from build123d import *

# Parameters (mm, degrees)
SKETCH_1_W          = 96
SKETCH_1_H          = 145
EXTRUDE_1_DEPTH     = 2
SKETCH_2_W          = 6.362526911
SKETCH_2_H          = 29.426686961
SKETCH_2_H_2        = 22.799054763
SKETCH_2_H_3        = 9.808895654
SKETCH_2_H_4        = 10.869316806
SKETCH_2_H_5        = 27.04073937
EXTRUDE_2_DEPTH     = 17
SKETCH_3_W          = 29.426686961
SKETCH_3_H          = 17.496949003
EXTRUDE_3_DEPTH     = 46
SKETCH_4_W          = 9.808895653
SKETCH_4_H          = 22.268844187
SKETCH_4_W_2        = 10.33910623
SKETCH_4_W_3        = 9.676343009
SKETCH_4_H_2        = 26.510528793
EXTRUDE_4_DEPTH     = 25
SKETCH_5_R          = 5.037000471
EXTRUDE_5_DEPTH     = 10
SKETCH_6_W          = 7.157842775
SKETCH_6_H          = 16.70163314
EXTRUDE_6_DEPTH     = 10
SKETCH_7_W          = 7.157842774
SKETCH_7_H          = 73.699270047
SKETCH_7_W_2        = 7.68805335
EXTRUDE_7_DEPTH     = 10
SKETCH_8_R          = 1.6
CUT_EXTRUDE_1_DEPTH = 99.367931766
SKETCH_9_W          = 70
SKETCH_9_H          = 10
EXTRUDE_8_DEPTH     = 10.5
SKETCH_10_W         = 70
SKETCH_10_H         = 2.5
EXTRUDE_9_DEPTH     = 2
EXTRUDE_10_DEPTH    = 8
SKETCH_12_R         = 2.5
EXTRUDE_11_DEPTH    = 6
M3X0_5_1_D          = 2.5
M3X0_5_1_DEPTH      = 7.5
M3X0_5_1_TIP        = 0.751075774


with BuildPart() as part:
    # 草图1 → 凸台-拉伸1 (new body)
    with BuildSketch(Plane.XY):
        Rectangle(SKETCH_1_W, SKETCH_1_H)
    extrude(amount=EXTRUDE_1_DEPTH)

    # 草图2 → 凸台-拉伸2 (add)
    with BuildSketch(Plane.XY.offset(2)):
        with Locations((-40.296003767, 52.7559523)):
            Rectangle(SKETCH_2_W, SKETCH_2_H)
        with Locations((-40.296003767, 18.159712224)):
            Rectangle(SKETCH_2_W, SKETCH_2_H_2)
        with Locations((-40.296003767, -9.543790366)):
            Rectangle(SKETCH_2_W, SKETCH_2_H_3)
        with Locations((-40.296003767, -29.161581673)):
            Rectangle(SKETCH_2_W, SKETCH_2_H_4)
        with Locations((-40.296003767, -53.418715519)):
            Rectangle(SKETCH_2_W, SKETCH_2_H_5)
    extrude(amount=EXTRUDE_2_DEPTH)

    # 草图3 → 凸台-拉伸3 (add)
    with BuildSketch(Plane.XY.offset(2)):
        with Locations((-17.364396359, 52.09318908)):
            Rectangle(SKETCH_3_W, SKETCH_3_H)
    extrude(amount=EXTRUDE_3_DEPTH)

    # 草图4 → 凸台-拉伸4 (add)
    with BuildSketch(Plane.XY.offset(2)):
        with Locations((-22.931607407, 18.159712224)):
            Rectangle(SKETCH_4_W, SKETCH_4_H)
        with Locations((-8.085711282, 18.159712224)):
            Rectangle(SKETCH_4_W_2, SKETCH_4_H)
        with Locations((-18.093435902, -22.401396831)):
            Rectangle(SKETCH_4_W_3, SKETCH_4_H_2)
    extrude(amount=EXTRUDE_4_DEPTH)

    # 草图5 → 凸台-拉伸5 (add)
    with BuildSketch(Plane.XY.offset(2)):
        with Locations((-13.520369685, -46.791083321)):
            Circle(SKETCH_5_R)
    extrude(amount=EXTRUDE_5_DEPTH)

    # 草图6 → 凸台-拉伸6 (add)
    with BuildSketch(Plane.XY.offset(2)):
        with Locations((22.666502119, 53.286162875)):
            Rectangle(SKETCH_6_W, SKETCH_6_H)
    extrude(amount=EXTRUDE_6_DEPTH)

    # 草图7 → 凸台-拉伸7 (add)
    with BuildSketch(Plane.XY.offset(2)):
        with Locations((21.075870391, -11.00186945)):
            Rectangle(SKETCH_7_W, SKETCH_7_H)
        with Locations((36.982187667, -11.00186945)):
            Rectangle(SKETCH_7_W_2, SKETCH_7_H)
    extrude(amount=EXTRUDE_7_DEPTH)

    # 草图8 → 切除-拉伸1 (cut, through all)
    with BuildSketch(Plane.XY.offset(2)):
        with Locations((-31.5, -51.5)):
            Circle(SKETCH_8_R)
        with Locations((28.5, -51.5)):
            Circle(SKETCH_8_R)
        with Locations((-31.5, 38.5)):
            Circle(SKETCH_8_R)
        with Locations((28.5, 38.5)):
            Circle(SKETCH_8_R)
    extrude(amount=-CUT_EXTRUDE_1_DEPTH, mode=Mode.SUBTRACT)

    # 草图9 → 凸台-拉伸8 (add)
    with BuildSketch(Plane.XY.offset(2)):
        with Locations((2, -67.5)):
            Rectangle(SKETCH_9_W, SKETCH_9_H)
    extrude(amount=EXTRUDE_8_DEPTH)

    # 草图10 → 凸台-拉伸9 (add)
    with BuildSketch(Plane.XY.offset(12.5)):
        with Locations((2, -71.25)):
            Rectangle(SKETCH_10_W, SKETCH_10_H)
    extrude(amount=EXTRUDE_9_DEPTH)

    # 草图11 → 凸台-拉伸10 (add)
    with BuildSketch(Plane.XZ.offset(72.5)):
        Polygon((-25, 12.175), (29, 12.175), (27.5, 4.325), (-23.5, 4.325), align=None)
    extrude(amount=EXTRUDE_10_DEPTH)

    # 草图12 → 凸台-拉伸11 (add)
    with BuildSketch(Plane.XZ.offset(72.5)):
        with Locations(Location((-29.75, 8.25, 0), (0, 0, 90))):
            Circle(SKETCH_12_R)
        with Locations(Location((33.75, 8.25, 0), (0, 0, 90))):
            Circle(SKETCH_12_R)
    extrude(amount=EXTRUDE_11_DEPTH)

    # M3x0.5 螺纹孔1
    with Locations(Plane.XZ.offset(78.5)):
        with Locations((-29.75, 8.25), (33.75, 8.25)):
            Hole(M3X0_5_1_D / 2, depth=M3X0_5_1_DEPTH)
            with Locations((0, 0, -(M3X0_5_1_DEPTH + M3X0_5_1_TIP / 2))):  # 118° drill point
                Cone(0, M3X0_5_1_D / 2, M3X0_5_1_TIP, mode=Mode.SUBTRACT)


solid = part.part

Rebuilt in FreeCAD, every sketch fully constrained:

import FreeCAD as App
import Part
import Sketcher
from FreeCAD import Vector


def add_polygon(sketch, points):
    """Adds a closed chain of lines whose ends are joined by coincident constraints."""
    first, n = sketch.GeometryCount, len(points)
    for a, b in zip(points, points[1:] + points[:1]):
        sketch.addGeometry(Part.LineSegment(App.Vector(*a, 0), App.Vector(*b, 0)), False)
    for i in range(n):
        sketch.addConstraint(Sketcher.Constraint("Coincident", first + i, 2, first + (i + 1) % n, 1))

doc = App.newDocument("Part")
params = doc.addObject("Spreadsheet::Sheet", "Params")
for row, (alias, value) in enumerate([
    ("sketch1_width", "96 mm"),
    ("sketch1_height", "145 mm"),
    ("pad1_length", "2 mm"),
    ("pad2_length", "17 mm"),
    ("pad3_length", "46 mm"),
    ("pad4_length", "25 mm"),
    ("pad5_length", "10 mm"),
    ("pad6_length", "10 mm"),
    ("pad7_length", "10 mm"),
    ("sketch8_diameter", "3.2 mm"),
    ("sketch9_width", "70 mm"),
    ("sketch9_height", "10 mm"),
    ("pad8_length", "10.5 mm"),
    ("sketch10_width", "70 mm"),
    ("sketch10_height", "2.5 mm"),
    ("pad9_length", "2 mm"),
    ("sketch11_width", "54 mm"),
    ("sketch11_width2", "51 mm"),
    ("pad10_length", "8 mm"),
    ("sketch12_diameter", "5 mm"),
    ("pad11_length", "6 mm"),
    ("sketch13_diameter", "2.5 mm"),
    ("hole_diameter", "2.5 mm"),
    ("hole_depth", "7.5 mm"),
], start=1):
    params.set(f"A{row}", alias)
    params.set(f"B{row}", "=" + value)
    params.setAlias(f"B{row}", alias)

body = doc.addObject("PartDesign::Body", "Body")

# Sketch on XY plane
sketch1 = body.newObject("Sketcher::SketchObject", "Sketch")
sketch1.AttachmentSupport = (doc.getObject("XY_Plane"), [""])
sketch1.MapMode = "FlatFace"
add_polygon(sketch1, [(-48, 72), (-48, -72), (48, -72), (48, 72)])  # lines 0-3
sketch1.addConstraint([
    Sketcher.Constraint("Vertical", 0),
    Sketcher.Constraint("Horizontal", 1),
    Sketcher.Constraint("Vertical", 2),
    Sketcher.Constraint("Horizontal", 3),
    Sketcher.Constraint("Symmetric", 0, 2, 2, 2, -1, 1),
    Sketcher.Constraint("DistanceX", 1, 1, 1, 2, 96.0),
    Sketcher.Constraint("DistanceY", 0, 2, 0, 1, 145.0),
])
sketch1.setExpression("Constraints[9]", "Params.sketch1_width")
sketch1.setExpression("Constraints[10]", "Params.sketch1_height")
pad1 = body.newObject("PartDesign::Pad", "Pad")
pad1.Profile = sketch1
pad1.setExpression("Length", "Params.pad1_length")

# Sketch on XY plane
sketch2 = body.newObject("Sketcher::SketchObject", "Sketch001")
sketch2.AttachmentSupport = (doc.getObject("XY_Plane"), [""])
sketch2.MapMode = "FlatFace"
sketch2.AttachmentOffset = App.Placement(Vector(0, 0, 2), App.Rotation())
add_polygon(sketch2, [(-43, 67), (-43, 38), (-37, 38), (-37, 67)])  # lines 0-3
add_polygon(sketch2, [(-43, 30), (-43, 7), (-37, 7), (-37, 30)])  # lines 4-7
add_polygon(sketch2, [(-43, -5), (-43, -14), (-37, -14), (-37, -5)])  # lines 8-11
add_polygon(sketch2, [(-43, -24), (-43, -35), (-37, -35), (-37, -24)])  # lines 12-15
add_polygon(sketch2, [(-43, -40), (-43, -67), (-37, -67), (-37, -40)])  # lines 16-19
sketch2.addConstraint([
    Sketcher.Constraint("Vertical", 0),
    Sketcher.Constraint("Horizontal", 1),
    Sketcher.Constraint("Vertical", 2),
    Sketcher.Constraint("Horizontal", 3),
    Sketcher.Constraint("Vertical", 4),
    Sketcher.Constraint("Horizontal", 5),
    Sketcher.Constraint("Vertical", 6),
    Sketcher.Constraint("Horizontal", 7),
    Sketcher.Constraint("Vertical", 8),
    Sketcher.Constraint("Horizontal", 9),
    Sketcher.Constraint("Vertical", 10),
    Sketcher.Constraint("Horizontal", 11),
    Sketcher.Constraint("Vertical", 12),
    Sketcher.Constraint("Horizontal", 13),
    Sketcher.Constraint("Vertical", 14),
    Sketcher.Constraint("Horizontal", 15),
    Sketcher.Constraint("Vertical", 16),
    Sketcher.Constraint("Horizontal", 17),
    Sketcher.Constraint("Vertical", 18),
    Sketcher.Constraint("Horizontal", 19),
    Sketcher.Constraint("Vertical", 3, 2, 4, 2),
    Sketcher.Constraint("Vertical", 2, 2, 5, 2),
    Sketcher.Constraint("Vertical", 7, 2, 8, 2),
    Sketcher.Constraint("Vertical", 6, 2, 9, 2),
    Sketcher.Constraint("Vertical", 11, 2, 12, 2),
    Sketcher.Constraint("Vertical", 10, 2, 13, 2),
    Sketcher.Constraint("Vertical", 15, 2, 16, 2),
    Sketcher.Constraint("Vertical", 14, 2, 17, 2),
    Sketcher.Constraint("DistanceY", 12, 2, 8, 2, 20.148002),
    Sketcher.Constraint("DistanceY", 16, 2, 16, 1, 27.040739),
    Sketcher.Constraint("DistanceX", 1, 1, 1, 2, 6.362527),
    Sketcher.Constraint("DistanceY", 0, 2, 0, 1, 29.426687),
    Sketcher.Constraint("DistanceY", 4, 2, 4, 1, 22.799055),
    Sketcher.Constraint("DistanceY", 8, 2, 8, 1, 9.808896),
    Sketcher.Constraint("DistanceY", 12, 2, 12, 1, 10.869317),
    Sketcher.Constraint("DistanceY", -1, 1, 0, 2, 38.042609),
    Sketcher.Constraint("DistanceX", 1, 2, -1, 1, 37.11474),
    Sketcher.Constraint("DistanceY", -1, 1, 6, 2, 29.55924),
    Sketcher.Constraint("DistanceY", 8, 2, -1, 1, 14.448238),
    Sketcher.Constraint("DistanceY", 16, 2, 15, 2, 43.212162),
])
pad2 = body.newObject("PartDesign::Pad", "Pad001")
pad2.Profile = sketch2
pad2.setExpression("Length", "Params.pad2_length")

# Sketch on XY plane
sketch3 = body.newObject("Sketcher::SketchObject", "Sketch002")
sketch3.AttachmentSupport = (doc.getObject("XY_Plane"), [""])
sketch3.MapMode = "FlatFace"
sketch3.AttachmentOffset = App.Placement(Vector(0, 0, 2), App.Rotation())
add_polygon(sketch3, [(-32, 61), (-32, 43), (-3, 43), (-3, 61)])  # lines 0-3
sketch3.addConstraint([
    Sketcher.Constraint("Vertical", 0),
    Sketcher.Constraint("Horizontal", 1),
    Sketcher.Constraint("Vertical", 2),
    Sketcher.Constraint("Horizontal", 3),
    Sketcher.Constraint("DistanceY", 0, 2, 0, 1, 17.496949),
    Sketcher.Constraint("DistanceX", 1, 1, 1, 2, 29.426687),
    Sketcher.Constraint("DistanceX", 0, 2, -1, 1, 32.07774),
    Sketcher.Constraint("DistanceY", -1, 1, 0, 2, 43.344715),
])
pad3 = body.newObject("PartDesign::Pad", "Pad002")
pad3.Profile = sketch3
pad3.setExpression("Length", "Params.pad3_length")

# Sketch on XY plane
sketch4 = body.newObject("Sketcher::SketchObject", "Sketch003")
sketch4.AttachmentSupport = (doc.getObject("XY_Plane"), [""])
sketch4.MapMode = "FlatFace"
sketch4.AttachmentOffset = App.Placement(Vector(0, 0, 2), App.Rotation())
add_polygon(sketch4, [(-28, 29), (-28, 7), (-18, 7), (-18, 29)])  # lines 0-3
add_polygon(sketch4, [(-13, 29), (-13, 7), (-3, 7), (-3, 29)])  # lines 4-7
add_polygon(sketch4, [(-23, -9), (-23, -36), (-13, -36), (-13, -9)])  # lines 8-11
sketch4.addConstraint([
    Sketcher.Constraint("Vertical", 0),
    Sketcher.Constraint("Horizontal", 1),
    Sketcher.Constraint("Vertical", 2),
    Sketcher.Constraint("Horizontal", 3),
    Sketcher.Constraint("Vertical", 4),
    Sketcher.Constraint("Horizontal", 5),
    Sketcher.Constraint("Vertical", 6),
    Sketcher.Constraint("Horizontal", 7),
    Sketcher.Constraint("Vertical", 8),
    Sketcher.Constraint("Horizontal", 9),
    Sketcher.Constraint("Vertical", 10),
    Sketcher.Constraint("Horizontal", 11),
    Sketcher.Constraint("Horizontal", 1, 2, 4, 2),
    Sketcher.Constraint("Horizontal", 3, 2, 6, 2),
    Sketcher.Constraint("Vertical", 7, 2, 9, 2),
    Sketcher.Constraint("DistanceX", 1, 2, 5, 2, 15.111001),
    Sketcher.Constraint("DistanceY", 8, 2, 8, 1, 26.510529),
    Sketcher.Constraint("DistanceX", 1, 1, 1, 2, 9.808896),
    Sketcher.Constraint("DistanceX", 5, 1, 5, 2, 10.339106),
    Sketcher.Constraint("DistanceX", 9, 1, 9, 2, 9.676343),
    Sketcher.Constraint("DistanceY", 0, 2, 0, 1, 22.268844),
    Sketcher.Constraint("DistanceY", -1, 1, 0, 2, 7.02529),
    Sketcher.Constraint("DistanceX", 1, 2, -1, 1, 18.02716),
    Sketcher.Constraint("DistanceY", 8, 2, -1, 1, 35.656661),
])
pad4 = body.newObject("PartDesign::Pad", "Pad003")
pad4.Profile = sketch4
pad4.setExpression("Length", "Params.pad4_length")

# Sketch on XY plane
sketch5 = body.newObject("Sketcher::SketchObject", "Sketch004")
sketch5.AttachmentSupport = (doc.getObject("XY_Plane"), [""])
sketch5.MapMode = "FlatFace"
sketch5.AttachmentOffset = App.Placement(Vector(0, 0, 2), App.Rotation())
sketch5.addGeometry(Part.Circle(Vector(-14, -47, 0), Vector(0, 0, 1), 5), False)
sketch5.addConstraint([
    Sketcher.Constraint("Diameter", 0, 10.074001),
    Sketcher.Constraint("DistanceX", 0, 3, -1, 1, 13.52037),
    Sketcher.Constraint("DistanceY", 0, 3, -1, 1, 46.791083),
])
pad5 = body.newObject("PartDesign::Pad", "Pad004")
pad5.Profile = sketch5
pad5.setExpression("Length", "Params.pad5_length")

# Sketch on XY plane
sketch6 = body.newObject("Sketcher::SketchObject", "Sketch005")
sketch6.AttachmentSupport = (doc.getObject("XY_Plane"), [""])
sketch6.MapMode = "FlatFace"
sketch6.AttachmentOffset = App.Placement(Vector(0, 0, 2), App.Rotation())
add_polygon(sketch6, [(19, 62), (19, 45), (26, 45), (26, 62)])  # lines 0-3
sketch6.addConstraint([
    Sketcher.Constraint("Vertical", 0),
    Sketcher.Constraint("Horizontal", 1),
    Sketcher.Constraint("Vertical", 2),
    Sketcher.Constraint("Horizontal", 3),
    Sketcher.Constraint("DistanceX", 1, 1, 1, 2, 7.157843),
    Sketcher.Constraint("DistanceY", 0, 2, 0, 1, 16.701633),
    Sketcher.Constraint("DistanceX", -1, 1, 0, 2, 19.087581),
    Sketcher.Constraint("DistanceY", -1, 1, 2, 2, 61.636979),
])
pad6 = body.newObject("PartDesign::Pad", "Pad005")
pad6.Profile = sketch6
pad6.setExpression("Length", "Params.pad6_length")

# Sketch on XY plane
sketch7 = body.newObject("Sketcher::SketchObject", "Sketch006")
sketch7.AttachmentSupport = (doc.getObject("XY_Plane"), [""])
sketch7.MapMode = "FlatFace"
sketch7.AttachmentOffset = App.Placement(Vector(0, 0, 2), App.Rotation())
add_polygon(sketch7, [(17, 26), (17, -48), (25, -48), (25, 26)])  # lines 0-3
add_polygon(sketch7, [(33, 26), (33, -48), (41, -48), (41, 26)])  # lines 4-7
sketch7.addConstraint([
    Sketcher.Constraint("Vertical", 0),
    Sketcher.Constraint("Horizontal", 1),
    Sketcher.Constraint("Vertical", 2),
    Sketcher.Constraint("Horizontal", 3),
    Sketcher.Constraint("Vertical", 4),
    Sketcher.Constraint("Horizontal", 5),
    Sketcher.Constraint("Vertical", 6),
    Sketcher.Constraint("Horizontal", 7),
    Sketcher.Constraint("Horizontal", 1, 2, 4, 2),
    Sketcher.Constraint("Horizontal", 3, 2, 6, 2),
    Sketcher.Constraint("DistanceY", 0, 2, 0, 1, 73.69927),
    Sketcher.Constraint("DistanceX", 1, 1, 1, 2, 7.157843),
    Sketcher.Constraint("DistanceX", 5, 1, 5, 2, 7.688053),
    Sketcher.Constraint("DistanceX", -1, 1, 0, 2, 17.496949),
    Sketcher.Constraint("DistanceX", -1, 1, 4, 2, 33.138161),
    Sketcher.Constraint("DistanceY", 0, 2, -1, 1, 47.851504),
])
pad7 = body.newObject("PartDesign::Pad", "Pad006")
pad7.Profile = sketch7
pad7.setExpression("Length", "Params.pad7_length")

# Sketch on XY plane
sketch8 = body.newObject("Sketcher::SketchObject", "Sketch007")
sketch8.AttachmentSupport = (doc.getObject("XY_Plane"), [""])
sketch8.MapMode = "FlatFace"
sketch8.AttachmentOffset = App.Placement(Vector(0, 0, 2), App.Rotation())
sketch8.addGeometry([
    Part.Circle(Vector(-31.5, -51.5, 0), Vector(0, 0, 1), 1.6),
    Part.Circle(Vector(28.5, -51.5, 0), Vector(0, 0, 1), 1.6),
    Part.Circle(Vector(-31.5, 38.5, 0), Vector(0, 0, 1), 1.6),
    Part.Circle(Vector(28.5, 38.5, 0), Vector(0, 0, 1), 1.6),
], False)
sketch8.addConstraint([
    Sketcher.Constraint("Equal", 0, 1),
    Sketcher.Constraint("Equal", 1, 2),
    Sketcher.Constraint("Equal", 2, 3),
    Sketcher.Constraint("Horizontal", 0, 3, 1, 3),
    Sketcher.Constraint("Horizontal", 2, 3, 3, 3),
    Sketcher.Constraint("Vertical", 0, 3, 2, 3),
    Sketcher.Constraint("Vertical", 1, 3, 3, 3),
    Sketcher.Constraint("Diameter", 0, 3.2),
    Sketcher.Constraint("DistanceX", 0, 3, 1, 3, 60.0),
    Sketcher.Constraint("DistanceY", 0, 3, 2, 3, 90.0),
    Sketcher.Constraint("DistanceX", 0, 3, -1, 1, 31.5),
    Sketcher.Constraint("DistanceY", 0, 3, -1, 1, 51.5),
])
sketch8.setExpression("Constraints[7]", "Params.sketch8_diameter")
pocket1 = body.newObject("PartDesign::Pocket", "Pocket")
pocket1.Profile = sketch8
pocket1.Type = "ThroughAll"

# Sketch on XY plane
sketch9 = body.newObject("Sketcher::SketchObject", "Sketch008")
sketch9.AttachmentSupport = (doc.getObject("XY_Plane"), [""])
sketch9.MapMode = "FlatFace"
sketch9.AttachmentOffset = App.Placement(Vector(0, 0, 2), App.Rotation())
add_polygon(sketch9, [(-33, -62), (-33, -72), (37, -72), (37, -62)])  # lines 0-3
sketch9.addConstraint([
    Sketcher.Constraint("Vertical", 0),
    Sketcher.Constraint("Horizontal", 1),
    Sketcher.Constraint("Vertical", 2),
    Sketcher.Constraint("Horizontal", 3),
    Sketcher.Constraint("DistanceX", 1, 1, 1, 2, 70.0),
    Sketcher.Constraint("DistanceY", 0, 2, 0, 1, 10.0),
    Sketcher.Constraint("DistanceX", 0, 2, -1, 1, 33.0),
    Sketcher.Constraint("DistanceY", 0, 2, -1, 1, 72.5),
])
sketch9.setExpression("Constraints[8]", "Params.sketch9_width")
sketch9.setExpression("Constraints[9]", "Params.sketch9_height")
pad8 = body.newObject("PartDesign::Pad", "Pad007")
pad8.Profile = sketch9
pad8.setExpression("Length", "Params.pad8_length")

# Sketch on XY plane
sketch10 = body.newObject("Sketcher::SketchObject", "Sketch009")
sketch10.AttachmentSupport = (doc.getObject("XY_Plane"), [""])
sketch10.MapMode = "FlatFace"
sketch10.AttachmentOffset = App.Placement(Vector(0, 0, 12.5), App.Rotation())
add_polygon(sketch10, [(-33, -70), (-33, -72.5), (37, -72.5), (37, -70)])  # lines 0-3
sketch10.addConstraint([
    Sketcher.Constraint("Vertical", 0),
    Sketcher.Constraint("Horizontal", 1),
    Sketcher.Constraint("Vertical", 2),
    Sketcher.Constraint("Horizontal", 3),
    Sketcher.Constraint("DistanceX", 1, 1, 1, 2, 70.0),
    Sketcher.Constraint("DistanceY", 0, 2, 0, 1, 2.5),
    Sketcher.Constraint("DistanceX", 0, 2, -1, 1, 33.0),
    Sketcher.Constraint("DistanceY", 2, 2, -1, 1, 70.0),
])
sketch10.setExpression("Constraints[8]", "Params.sketch10_width")
sketch10.setExpression("Constraints[9]", "Params.sketch10_height")
pad9 = body.newObject("PartDesign::Pad", "Pad008")
pad9.Profile = sketch10
pad9.setExpression("Length", "Params.pad9_length")

# Sketch on XZ plane
sketch11 = body.newObject("Sketcher::SketchObject", "Sketch010")
sketch11.AttachmentSupport = (doc.getObject("XZ_Plane"), [""])
sketch11.MapMode = "FlatFace"
sketch11.AttachmentOffset = App.Placement(Vector(0, 0, 72.5), App.Rotation())
add_polygon(sketch11, [(29, 12), (-25, 12), (-24, 4), (28, 4)])  # lines 0-3
sketch11.addConstraint([
    Sketcher.Constraint("Horizontal", 0),
    Sketcher.Constraint("Horizontal", 2),
    Sketcher.Constraint("Equal", 1, 3),
    Sketcher.Constraint("DistanceX", 0, 2, 0, 1, 54.0),
    Sketcher.Constraint("DistanceX", 2, 1, 2, 2, 51.0),
    Sketcher.Constraint("DistanceX", 0, 2, -1, 1, 25.0),
    Sketcher.Constraint("DistanceY", 1, 2, 0, 2, 7.85),
    Sketcher.Constraint("DistanceY", -1, 1, 0, 2, 12.175),
])
sketch11.setExpression("Constraints[7]", "Params.sketch11_width")
sketch11.setExpression("Constraints[8]", "Params.sketch11_width2")
pad10 = body.newObject("PartDesign::Pad", "Pad009")
pad10.Profile = sketch11
pad10.setExpression("Length", "Params.pad10_length")

# Sketch on XZ plane
sketch12 = body.newObject("Sketcher::SketchObject", "Sketch011")
sketch12.AttachmentSupport = (doc.getObject("XZ_Plane"), [""])
sketch12.MapMode = "FlatFace"
sketch12.AttachmentOffset = App.Placement(Vector(0, 0, 72.5), App.Rotation())
sketch12.addGeometry([
    Part.Circle(Vector(-29.8, 8.2, 0), Vector(0, 0, 1), 2.5),
    Part.Circle(Vector(33.8, 8.2, 0), Vector(0, 0, 1), 2.5),
], False)
sketch12.addConstraint([
    Sketcher.Constraint("Equal", 0, 1),
    Sketcher.Constraint("Horizontal", 0, 3, 1, 3),
    Sketcher.Constraint("Diameter", 0, 5.0),
    Sketcher.Constraint("DistanceX", 0, 3, 1, 3, 63.5),
    Sketcher.Constraint("DistanceX", 0, 3, -1, 1, 29.75),
    Sketcher.Constraint("DistanceY", -1, 1, 0, 3, 8.25),
])
sketch12.setExpression("Constraints[2]", "Params.sketch12_diameter")
pad11 = body.newObject("PartDesign::Pad", "Pad010")
pad11.Profile = sketch12
pad11.setExpression("Length", "Params.pad11_length")

# Sketch on XZ plane
sketch13 = body.newObject("Sketcher::SketchObject", "Sketch012")
sketch13.AttachmentSupport = (doc.getObject("XZ_Plane"), [""])
sketch13.MapMode = "FlatFace"
sketch13.AttachmentOffset = App.Placement(Vector(0, 0, 78.5), App.Rotation())
sketch13.addGeometry([
    Part.Circle(Vector(-29.8, 8.2, 0), Vector(0, 0, 1), 1.2),
    Part.Circle(Vector(33.8, 8.2, 0), Vector(0, 0, 1), 1.2),
], False)
sketch13.addConstraint([
    Sketcher.Constraint("Equal", 0, 1),
    Sketcher.Constraint("Horizontal", 0, 3, 1, 3),
    Sketcher.Constraint("Diameter", 0, 2.5),
    Sketcher.Constraint("DistanceX", 0, 3, 1, 3, 63.5),
    Sketcher.Constraint("DistanceX", 0, 3, -1, 1, 29.75),
    Sketcher.Constraint("DistanceY", -1, 1, 0, 3, 8.25),
])
sketch13.setExpression("Constraints[2]", "Params.sketch13_diameter")
doc.recompute()
hole = body.newObject("PartDesign::Hole", "Hole")
hole.Profile = sketch13
hole.ThreadType = "None"
hole.setExpression("Diameter", "Params.hole_diameter")
hole.DepthType = "Dimension"
hole.setExpression("Depth", "Params.hole_depth")
hole.DrillPoint = "Angled"
hole.DrillPointAngle = 118

doc.recompute()
